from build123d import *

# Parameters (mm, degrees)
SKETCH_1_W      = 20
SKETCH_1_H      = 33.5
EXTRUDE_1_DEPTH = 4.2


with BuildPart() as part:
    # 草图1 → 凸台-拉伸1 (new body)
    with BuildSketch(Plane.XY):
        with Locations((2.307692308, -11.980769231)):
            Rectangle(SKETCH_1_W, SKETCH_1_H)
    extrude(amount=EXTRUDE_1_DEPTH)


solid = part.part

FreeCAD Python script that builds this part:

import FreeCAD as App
import Part
import Sketcher
from FreeCAD import Vector
Q = App.Units.Quantity

doc = App.newDocument("Part")
body = doc.addObject("PartDesign::Body", "Body")

sketch1 = doc.addObject("Sketcher::SketchObject", "Sketch")
body.addObject(sketch1)
sketch1.AttachmentSupport = (doc.XY_Plane, [""])
sketch1.MapMode = "FlatFace"
sketch1.addGeometry([
    Part.LineSegment(Vector(-8, 5, 0), Vector(-8, -29, 0)),
    Part.LineSegment(Vector(-8, -29, 0), Vector(12, -29, 0)),
    Part.LineSegment(Vector(12, -29, 0), Vector(12, 5, 0)),
    Part.LineSegment(Vector(12, 5, 0), Vector(-8, 5, 0)),
], False)
sketch1.addConstraint([
    Sketcher.Constraint("Coincident", 0, 2, 1, 1),
    Sketcher.Constraint("Coincident", 1, 2, 2, 1),
    Sketcher.Constraint("Coincident", 2, 2, 3, 1),
    Sketcher.Constraint("Coincident", 3, 2, 0, 1),
    Sketcher.Constraint("Vertical", 0),
    Sketcher.Constraint("Horizontal", 1),
    Sketcher.Constraint("Vertical", 2),
    Sketcher.Constraint("Horizontal", 3),
    Sketcher.Constraint("DistanceX", 1, 1, 1, 2, Q("20 mm")),
    Sketcher.Constraint("DistanceY", 0, 2, 0, 1, Q("33.5 mm")),
    Sketcher.Constraint("DistanceY", 0, 2, -1, 1, Q("28.730769 mm")),
    Sketcher.Constraint("DistanceX", 0, 2, -1, 1, Q("7.692308 mm")),
])
pad1 = doc.addObject("PartDesign::Pad", "Pad")
body.addObject(pad1)
pad1.Profile = sketch1
pad1.Length = 4.2

doc.recompute()
